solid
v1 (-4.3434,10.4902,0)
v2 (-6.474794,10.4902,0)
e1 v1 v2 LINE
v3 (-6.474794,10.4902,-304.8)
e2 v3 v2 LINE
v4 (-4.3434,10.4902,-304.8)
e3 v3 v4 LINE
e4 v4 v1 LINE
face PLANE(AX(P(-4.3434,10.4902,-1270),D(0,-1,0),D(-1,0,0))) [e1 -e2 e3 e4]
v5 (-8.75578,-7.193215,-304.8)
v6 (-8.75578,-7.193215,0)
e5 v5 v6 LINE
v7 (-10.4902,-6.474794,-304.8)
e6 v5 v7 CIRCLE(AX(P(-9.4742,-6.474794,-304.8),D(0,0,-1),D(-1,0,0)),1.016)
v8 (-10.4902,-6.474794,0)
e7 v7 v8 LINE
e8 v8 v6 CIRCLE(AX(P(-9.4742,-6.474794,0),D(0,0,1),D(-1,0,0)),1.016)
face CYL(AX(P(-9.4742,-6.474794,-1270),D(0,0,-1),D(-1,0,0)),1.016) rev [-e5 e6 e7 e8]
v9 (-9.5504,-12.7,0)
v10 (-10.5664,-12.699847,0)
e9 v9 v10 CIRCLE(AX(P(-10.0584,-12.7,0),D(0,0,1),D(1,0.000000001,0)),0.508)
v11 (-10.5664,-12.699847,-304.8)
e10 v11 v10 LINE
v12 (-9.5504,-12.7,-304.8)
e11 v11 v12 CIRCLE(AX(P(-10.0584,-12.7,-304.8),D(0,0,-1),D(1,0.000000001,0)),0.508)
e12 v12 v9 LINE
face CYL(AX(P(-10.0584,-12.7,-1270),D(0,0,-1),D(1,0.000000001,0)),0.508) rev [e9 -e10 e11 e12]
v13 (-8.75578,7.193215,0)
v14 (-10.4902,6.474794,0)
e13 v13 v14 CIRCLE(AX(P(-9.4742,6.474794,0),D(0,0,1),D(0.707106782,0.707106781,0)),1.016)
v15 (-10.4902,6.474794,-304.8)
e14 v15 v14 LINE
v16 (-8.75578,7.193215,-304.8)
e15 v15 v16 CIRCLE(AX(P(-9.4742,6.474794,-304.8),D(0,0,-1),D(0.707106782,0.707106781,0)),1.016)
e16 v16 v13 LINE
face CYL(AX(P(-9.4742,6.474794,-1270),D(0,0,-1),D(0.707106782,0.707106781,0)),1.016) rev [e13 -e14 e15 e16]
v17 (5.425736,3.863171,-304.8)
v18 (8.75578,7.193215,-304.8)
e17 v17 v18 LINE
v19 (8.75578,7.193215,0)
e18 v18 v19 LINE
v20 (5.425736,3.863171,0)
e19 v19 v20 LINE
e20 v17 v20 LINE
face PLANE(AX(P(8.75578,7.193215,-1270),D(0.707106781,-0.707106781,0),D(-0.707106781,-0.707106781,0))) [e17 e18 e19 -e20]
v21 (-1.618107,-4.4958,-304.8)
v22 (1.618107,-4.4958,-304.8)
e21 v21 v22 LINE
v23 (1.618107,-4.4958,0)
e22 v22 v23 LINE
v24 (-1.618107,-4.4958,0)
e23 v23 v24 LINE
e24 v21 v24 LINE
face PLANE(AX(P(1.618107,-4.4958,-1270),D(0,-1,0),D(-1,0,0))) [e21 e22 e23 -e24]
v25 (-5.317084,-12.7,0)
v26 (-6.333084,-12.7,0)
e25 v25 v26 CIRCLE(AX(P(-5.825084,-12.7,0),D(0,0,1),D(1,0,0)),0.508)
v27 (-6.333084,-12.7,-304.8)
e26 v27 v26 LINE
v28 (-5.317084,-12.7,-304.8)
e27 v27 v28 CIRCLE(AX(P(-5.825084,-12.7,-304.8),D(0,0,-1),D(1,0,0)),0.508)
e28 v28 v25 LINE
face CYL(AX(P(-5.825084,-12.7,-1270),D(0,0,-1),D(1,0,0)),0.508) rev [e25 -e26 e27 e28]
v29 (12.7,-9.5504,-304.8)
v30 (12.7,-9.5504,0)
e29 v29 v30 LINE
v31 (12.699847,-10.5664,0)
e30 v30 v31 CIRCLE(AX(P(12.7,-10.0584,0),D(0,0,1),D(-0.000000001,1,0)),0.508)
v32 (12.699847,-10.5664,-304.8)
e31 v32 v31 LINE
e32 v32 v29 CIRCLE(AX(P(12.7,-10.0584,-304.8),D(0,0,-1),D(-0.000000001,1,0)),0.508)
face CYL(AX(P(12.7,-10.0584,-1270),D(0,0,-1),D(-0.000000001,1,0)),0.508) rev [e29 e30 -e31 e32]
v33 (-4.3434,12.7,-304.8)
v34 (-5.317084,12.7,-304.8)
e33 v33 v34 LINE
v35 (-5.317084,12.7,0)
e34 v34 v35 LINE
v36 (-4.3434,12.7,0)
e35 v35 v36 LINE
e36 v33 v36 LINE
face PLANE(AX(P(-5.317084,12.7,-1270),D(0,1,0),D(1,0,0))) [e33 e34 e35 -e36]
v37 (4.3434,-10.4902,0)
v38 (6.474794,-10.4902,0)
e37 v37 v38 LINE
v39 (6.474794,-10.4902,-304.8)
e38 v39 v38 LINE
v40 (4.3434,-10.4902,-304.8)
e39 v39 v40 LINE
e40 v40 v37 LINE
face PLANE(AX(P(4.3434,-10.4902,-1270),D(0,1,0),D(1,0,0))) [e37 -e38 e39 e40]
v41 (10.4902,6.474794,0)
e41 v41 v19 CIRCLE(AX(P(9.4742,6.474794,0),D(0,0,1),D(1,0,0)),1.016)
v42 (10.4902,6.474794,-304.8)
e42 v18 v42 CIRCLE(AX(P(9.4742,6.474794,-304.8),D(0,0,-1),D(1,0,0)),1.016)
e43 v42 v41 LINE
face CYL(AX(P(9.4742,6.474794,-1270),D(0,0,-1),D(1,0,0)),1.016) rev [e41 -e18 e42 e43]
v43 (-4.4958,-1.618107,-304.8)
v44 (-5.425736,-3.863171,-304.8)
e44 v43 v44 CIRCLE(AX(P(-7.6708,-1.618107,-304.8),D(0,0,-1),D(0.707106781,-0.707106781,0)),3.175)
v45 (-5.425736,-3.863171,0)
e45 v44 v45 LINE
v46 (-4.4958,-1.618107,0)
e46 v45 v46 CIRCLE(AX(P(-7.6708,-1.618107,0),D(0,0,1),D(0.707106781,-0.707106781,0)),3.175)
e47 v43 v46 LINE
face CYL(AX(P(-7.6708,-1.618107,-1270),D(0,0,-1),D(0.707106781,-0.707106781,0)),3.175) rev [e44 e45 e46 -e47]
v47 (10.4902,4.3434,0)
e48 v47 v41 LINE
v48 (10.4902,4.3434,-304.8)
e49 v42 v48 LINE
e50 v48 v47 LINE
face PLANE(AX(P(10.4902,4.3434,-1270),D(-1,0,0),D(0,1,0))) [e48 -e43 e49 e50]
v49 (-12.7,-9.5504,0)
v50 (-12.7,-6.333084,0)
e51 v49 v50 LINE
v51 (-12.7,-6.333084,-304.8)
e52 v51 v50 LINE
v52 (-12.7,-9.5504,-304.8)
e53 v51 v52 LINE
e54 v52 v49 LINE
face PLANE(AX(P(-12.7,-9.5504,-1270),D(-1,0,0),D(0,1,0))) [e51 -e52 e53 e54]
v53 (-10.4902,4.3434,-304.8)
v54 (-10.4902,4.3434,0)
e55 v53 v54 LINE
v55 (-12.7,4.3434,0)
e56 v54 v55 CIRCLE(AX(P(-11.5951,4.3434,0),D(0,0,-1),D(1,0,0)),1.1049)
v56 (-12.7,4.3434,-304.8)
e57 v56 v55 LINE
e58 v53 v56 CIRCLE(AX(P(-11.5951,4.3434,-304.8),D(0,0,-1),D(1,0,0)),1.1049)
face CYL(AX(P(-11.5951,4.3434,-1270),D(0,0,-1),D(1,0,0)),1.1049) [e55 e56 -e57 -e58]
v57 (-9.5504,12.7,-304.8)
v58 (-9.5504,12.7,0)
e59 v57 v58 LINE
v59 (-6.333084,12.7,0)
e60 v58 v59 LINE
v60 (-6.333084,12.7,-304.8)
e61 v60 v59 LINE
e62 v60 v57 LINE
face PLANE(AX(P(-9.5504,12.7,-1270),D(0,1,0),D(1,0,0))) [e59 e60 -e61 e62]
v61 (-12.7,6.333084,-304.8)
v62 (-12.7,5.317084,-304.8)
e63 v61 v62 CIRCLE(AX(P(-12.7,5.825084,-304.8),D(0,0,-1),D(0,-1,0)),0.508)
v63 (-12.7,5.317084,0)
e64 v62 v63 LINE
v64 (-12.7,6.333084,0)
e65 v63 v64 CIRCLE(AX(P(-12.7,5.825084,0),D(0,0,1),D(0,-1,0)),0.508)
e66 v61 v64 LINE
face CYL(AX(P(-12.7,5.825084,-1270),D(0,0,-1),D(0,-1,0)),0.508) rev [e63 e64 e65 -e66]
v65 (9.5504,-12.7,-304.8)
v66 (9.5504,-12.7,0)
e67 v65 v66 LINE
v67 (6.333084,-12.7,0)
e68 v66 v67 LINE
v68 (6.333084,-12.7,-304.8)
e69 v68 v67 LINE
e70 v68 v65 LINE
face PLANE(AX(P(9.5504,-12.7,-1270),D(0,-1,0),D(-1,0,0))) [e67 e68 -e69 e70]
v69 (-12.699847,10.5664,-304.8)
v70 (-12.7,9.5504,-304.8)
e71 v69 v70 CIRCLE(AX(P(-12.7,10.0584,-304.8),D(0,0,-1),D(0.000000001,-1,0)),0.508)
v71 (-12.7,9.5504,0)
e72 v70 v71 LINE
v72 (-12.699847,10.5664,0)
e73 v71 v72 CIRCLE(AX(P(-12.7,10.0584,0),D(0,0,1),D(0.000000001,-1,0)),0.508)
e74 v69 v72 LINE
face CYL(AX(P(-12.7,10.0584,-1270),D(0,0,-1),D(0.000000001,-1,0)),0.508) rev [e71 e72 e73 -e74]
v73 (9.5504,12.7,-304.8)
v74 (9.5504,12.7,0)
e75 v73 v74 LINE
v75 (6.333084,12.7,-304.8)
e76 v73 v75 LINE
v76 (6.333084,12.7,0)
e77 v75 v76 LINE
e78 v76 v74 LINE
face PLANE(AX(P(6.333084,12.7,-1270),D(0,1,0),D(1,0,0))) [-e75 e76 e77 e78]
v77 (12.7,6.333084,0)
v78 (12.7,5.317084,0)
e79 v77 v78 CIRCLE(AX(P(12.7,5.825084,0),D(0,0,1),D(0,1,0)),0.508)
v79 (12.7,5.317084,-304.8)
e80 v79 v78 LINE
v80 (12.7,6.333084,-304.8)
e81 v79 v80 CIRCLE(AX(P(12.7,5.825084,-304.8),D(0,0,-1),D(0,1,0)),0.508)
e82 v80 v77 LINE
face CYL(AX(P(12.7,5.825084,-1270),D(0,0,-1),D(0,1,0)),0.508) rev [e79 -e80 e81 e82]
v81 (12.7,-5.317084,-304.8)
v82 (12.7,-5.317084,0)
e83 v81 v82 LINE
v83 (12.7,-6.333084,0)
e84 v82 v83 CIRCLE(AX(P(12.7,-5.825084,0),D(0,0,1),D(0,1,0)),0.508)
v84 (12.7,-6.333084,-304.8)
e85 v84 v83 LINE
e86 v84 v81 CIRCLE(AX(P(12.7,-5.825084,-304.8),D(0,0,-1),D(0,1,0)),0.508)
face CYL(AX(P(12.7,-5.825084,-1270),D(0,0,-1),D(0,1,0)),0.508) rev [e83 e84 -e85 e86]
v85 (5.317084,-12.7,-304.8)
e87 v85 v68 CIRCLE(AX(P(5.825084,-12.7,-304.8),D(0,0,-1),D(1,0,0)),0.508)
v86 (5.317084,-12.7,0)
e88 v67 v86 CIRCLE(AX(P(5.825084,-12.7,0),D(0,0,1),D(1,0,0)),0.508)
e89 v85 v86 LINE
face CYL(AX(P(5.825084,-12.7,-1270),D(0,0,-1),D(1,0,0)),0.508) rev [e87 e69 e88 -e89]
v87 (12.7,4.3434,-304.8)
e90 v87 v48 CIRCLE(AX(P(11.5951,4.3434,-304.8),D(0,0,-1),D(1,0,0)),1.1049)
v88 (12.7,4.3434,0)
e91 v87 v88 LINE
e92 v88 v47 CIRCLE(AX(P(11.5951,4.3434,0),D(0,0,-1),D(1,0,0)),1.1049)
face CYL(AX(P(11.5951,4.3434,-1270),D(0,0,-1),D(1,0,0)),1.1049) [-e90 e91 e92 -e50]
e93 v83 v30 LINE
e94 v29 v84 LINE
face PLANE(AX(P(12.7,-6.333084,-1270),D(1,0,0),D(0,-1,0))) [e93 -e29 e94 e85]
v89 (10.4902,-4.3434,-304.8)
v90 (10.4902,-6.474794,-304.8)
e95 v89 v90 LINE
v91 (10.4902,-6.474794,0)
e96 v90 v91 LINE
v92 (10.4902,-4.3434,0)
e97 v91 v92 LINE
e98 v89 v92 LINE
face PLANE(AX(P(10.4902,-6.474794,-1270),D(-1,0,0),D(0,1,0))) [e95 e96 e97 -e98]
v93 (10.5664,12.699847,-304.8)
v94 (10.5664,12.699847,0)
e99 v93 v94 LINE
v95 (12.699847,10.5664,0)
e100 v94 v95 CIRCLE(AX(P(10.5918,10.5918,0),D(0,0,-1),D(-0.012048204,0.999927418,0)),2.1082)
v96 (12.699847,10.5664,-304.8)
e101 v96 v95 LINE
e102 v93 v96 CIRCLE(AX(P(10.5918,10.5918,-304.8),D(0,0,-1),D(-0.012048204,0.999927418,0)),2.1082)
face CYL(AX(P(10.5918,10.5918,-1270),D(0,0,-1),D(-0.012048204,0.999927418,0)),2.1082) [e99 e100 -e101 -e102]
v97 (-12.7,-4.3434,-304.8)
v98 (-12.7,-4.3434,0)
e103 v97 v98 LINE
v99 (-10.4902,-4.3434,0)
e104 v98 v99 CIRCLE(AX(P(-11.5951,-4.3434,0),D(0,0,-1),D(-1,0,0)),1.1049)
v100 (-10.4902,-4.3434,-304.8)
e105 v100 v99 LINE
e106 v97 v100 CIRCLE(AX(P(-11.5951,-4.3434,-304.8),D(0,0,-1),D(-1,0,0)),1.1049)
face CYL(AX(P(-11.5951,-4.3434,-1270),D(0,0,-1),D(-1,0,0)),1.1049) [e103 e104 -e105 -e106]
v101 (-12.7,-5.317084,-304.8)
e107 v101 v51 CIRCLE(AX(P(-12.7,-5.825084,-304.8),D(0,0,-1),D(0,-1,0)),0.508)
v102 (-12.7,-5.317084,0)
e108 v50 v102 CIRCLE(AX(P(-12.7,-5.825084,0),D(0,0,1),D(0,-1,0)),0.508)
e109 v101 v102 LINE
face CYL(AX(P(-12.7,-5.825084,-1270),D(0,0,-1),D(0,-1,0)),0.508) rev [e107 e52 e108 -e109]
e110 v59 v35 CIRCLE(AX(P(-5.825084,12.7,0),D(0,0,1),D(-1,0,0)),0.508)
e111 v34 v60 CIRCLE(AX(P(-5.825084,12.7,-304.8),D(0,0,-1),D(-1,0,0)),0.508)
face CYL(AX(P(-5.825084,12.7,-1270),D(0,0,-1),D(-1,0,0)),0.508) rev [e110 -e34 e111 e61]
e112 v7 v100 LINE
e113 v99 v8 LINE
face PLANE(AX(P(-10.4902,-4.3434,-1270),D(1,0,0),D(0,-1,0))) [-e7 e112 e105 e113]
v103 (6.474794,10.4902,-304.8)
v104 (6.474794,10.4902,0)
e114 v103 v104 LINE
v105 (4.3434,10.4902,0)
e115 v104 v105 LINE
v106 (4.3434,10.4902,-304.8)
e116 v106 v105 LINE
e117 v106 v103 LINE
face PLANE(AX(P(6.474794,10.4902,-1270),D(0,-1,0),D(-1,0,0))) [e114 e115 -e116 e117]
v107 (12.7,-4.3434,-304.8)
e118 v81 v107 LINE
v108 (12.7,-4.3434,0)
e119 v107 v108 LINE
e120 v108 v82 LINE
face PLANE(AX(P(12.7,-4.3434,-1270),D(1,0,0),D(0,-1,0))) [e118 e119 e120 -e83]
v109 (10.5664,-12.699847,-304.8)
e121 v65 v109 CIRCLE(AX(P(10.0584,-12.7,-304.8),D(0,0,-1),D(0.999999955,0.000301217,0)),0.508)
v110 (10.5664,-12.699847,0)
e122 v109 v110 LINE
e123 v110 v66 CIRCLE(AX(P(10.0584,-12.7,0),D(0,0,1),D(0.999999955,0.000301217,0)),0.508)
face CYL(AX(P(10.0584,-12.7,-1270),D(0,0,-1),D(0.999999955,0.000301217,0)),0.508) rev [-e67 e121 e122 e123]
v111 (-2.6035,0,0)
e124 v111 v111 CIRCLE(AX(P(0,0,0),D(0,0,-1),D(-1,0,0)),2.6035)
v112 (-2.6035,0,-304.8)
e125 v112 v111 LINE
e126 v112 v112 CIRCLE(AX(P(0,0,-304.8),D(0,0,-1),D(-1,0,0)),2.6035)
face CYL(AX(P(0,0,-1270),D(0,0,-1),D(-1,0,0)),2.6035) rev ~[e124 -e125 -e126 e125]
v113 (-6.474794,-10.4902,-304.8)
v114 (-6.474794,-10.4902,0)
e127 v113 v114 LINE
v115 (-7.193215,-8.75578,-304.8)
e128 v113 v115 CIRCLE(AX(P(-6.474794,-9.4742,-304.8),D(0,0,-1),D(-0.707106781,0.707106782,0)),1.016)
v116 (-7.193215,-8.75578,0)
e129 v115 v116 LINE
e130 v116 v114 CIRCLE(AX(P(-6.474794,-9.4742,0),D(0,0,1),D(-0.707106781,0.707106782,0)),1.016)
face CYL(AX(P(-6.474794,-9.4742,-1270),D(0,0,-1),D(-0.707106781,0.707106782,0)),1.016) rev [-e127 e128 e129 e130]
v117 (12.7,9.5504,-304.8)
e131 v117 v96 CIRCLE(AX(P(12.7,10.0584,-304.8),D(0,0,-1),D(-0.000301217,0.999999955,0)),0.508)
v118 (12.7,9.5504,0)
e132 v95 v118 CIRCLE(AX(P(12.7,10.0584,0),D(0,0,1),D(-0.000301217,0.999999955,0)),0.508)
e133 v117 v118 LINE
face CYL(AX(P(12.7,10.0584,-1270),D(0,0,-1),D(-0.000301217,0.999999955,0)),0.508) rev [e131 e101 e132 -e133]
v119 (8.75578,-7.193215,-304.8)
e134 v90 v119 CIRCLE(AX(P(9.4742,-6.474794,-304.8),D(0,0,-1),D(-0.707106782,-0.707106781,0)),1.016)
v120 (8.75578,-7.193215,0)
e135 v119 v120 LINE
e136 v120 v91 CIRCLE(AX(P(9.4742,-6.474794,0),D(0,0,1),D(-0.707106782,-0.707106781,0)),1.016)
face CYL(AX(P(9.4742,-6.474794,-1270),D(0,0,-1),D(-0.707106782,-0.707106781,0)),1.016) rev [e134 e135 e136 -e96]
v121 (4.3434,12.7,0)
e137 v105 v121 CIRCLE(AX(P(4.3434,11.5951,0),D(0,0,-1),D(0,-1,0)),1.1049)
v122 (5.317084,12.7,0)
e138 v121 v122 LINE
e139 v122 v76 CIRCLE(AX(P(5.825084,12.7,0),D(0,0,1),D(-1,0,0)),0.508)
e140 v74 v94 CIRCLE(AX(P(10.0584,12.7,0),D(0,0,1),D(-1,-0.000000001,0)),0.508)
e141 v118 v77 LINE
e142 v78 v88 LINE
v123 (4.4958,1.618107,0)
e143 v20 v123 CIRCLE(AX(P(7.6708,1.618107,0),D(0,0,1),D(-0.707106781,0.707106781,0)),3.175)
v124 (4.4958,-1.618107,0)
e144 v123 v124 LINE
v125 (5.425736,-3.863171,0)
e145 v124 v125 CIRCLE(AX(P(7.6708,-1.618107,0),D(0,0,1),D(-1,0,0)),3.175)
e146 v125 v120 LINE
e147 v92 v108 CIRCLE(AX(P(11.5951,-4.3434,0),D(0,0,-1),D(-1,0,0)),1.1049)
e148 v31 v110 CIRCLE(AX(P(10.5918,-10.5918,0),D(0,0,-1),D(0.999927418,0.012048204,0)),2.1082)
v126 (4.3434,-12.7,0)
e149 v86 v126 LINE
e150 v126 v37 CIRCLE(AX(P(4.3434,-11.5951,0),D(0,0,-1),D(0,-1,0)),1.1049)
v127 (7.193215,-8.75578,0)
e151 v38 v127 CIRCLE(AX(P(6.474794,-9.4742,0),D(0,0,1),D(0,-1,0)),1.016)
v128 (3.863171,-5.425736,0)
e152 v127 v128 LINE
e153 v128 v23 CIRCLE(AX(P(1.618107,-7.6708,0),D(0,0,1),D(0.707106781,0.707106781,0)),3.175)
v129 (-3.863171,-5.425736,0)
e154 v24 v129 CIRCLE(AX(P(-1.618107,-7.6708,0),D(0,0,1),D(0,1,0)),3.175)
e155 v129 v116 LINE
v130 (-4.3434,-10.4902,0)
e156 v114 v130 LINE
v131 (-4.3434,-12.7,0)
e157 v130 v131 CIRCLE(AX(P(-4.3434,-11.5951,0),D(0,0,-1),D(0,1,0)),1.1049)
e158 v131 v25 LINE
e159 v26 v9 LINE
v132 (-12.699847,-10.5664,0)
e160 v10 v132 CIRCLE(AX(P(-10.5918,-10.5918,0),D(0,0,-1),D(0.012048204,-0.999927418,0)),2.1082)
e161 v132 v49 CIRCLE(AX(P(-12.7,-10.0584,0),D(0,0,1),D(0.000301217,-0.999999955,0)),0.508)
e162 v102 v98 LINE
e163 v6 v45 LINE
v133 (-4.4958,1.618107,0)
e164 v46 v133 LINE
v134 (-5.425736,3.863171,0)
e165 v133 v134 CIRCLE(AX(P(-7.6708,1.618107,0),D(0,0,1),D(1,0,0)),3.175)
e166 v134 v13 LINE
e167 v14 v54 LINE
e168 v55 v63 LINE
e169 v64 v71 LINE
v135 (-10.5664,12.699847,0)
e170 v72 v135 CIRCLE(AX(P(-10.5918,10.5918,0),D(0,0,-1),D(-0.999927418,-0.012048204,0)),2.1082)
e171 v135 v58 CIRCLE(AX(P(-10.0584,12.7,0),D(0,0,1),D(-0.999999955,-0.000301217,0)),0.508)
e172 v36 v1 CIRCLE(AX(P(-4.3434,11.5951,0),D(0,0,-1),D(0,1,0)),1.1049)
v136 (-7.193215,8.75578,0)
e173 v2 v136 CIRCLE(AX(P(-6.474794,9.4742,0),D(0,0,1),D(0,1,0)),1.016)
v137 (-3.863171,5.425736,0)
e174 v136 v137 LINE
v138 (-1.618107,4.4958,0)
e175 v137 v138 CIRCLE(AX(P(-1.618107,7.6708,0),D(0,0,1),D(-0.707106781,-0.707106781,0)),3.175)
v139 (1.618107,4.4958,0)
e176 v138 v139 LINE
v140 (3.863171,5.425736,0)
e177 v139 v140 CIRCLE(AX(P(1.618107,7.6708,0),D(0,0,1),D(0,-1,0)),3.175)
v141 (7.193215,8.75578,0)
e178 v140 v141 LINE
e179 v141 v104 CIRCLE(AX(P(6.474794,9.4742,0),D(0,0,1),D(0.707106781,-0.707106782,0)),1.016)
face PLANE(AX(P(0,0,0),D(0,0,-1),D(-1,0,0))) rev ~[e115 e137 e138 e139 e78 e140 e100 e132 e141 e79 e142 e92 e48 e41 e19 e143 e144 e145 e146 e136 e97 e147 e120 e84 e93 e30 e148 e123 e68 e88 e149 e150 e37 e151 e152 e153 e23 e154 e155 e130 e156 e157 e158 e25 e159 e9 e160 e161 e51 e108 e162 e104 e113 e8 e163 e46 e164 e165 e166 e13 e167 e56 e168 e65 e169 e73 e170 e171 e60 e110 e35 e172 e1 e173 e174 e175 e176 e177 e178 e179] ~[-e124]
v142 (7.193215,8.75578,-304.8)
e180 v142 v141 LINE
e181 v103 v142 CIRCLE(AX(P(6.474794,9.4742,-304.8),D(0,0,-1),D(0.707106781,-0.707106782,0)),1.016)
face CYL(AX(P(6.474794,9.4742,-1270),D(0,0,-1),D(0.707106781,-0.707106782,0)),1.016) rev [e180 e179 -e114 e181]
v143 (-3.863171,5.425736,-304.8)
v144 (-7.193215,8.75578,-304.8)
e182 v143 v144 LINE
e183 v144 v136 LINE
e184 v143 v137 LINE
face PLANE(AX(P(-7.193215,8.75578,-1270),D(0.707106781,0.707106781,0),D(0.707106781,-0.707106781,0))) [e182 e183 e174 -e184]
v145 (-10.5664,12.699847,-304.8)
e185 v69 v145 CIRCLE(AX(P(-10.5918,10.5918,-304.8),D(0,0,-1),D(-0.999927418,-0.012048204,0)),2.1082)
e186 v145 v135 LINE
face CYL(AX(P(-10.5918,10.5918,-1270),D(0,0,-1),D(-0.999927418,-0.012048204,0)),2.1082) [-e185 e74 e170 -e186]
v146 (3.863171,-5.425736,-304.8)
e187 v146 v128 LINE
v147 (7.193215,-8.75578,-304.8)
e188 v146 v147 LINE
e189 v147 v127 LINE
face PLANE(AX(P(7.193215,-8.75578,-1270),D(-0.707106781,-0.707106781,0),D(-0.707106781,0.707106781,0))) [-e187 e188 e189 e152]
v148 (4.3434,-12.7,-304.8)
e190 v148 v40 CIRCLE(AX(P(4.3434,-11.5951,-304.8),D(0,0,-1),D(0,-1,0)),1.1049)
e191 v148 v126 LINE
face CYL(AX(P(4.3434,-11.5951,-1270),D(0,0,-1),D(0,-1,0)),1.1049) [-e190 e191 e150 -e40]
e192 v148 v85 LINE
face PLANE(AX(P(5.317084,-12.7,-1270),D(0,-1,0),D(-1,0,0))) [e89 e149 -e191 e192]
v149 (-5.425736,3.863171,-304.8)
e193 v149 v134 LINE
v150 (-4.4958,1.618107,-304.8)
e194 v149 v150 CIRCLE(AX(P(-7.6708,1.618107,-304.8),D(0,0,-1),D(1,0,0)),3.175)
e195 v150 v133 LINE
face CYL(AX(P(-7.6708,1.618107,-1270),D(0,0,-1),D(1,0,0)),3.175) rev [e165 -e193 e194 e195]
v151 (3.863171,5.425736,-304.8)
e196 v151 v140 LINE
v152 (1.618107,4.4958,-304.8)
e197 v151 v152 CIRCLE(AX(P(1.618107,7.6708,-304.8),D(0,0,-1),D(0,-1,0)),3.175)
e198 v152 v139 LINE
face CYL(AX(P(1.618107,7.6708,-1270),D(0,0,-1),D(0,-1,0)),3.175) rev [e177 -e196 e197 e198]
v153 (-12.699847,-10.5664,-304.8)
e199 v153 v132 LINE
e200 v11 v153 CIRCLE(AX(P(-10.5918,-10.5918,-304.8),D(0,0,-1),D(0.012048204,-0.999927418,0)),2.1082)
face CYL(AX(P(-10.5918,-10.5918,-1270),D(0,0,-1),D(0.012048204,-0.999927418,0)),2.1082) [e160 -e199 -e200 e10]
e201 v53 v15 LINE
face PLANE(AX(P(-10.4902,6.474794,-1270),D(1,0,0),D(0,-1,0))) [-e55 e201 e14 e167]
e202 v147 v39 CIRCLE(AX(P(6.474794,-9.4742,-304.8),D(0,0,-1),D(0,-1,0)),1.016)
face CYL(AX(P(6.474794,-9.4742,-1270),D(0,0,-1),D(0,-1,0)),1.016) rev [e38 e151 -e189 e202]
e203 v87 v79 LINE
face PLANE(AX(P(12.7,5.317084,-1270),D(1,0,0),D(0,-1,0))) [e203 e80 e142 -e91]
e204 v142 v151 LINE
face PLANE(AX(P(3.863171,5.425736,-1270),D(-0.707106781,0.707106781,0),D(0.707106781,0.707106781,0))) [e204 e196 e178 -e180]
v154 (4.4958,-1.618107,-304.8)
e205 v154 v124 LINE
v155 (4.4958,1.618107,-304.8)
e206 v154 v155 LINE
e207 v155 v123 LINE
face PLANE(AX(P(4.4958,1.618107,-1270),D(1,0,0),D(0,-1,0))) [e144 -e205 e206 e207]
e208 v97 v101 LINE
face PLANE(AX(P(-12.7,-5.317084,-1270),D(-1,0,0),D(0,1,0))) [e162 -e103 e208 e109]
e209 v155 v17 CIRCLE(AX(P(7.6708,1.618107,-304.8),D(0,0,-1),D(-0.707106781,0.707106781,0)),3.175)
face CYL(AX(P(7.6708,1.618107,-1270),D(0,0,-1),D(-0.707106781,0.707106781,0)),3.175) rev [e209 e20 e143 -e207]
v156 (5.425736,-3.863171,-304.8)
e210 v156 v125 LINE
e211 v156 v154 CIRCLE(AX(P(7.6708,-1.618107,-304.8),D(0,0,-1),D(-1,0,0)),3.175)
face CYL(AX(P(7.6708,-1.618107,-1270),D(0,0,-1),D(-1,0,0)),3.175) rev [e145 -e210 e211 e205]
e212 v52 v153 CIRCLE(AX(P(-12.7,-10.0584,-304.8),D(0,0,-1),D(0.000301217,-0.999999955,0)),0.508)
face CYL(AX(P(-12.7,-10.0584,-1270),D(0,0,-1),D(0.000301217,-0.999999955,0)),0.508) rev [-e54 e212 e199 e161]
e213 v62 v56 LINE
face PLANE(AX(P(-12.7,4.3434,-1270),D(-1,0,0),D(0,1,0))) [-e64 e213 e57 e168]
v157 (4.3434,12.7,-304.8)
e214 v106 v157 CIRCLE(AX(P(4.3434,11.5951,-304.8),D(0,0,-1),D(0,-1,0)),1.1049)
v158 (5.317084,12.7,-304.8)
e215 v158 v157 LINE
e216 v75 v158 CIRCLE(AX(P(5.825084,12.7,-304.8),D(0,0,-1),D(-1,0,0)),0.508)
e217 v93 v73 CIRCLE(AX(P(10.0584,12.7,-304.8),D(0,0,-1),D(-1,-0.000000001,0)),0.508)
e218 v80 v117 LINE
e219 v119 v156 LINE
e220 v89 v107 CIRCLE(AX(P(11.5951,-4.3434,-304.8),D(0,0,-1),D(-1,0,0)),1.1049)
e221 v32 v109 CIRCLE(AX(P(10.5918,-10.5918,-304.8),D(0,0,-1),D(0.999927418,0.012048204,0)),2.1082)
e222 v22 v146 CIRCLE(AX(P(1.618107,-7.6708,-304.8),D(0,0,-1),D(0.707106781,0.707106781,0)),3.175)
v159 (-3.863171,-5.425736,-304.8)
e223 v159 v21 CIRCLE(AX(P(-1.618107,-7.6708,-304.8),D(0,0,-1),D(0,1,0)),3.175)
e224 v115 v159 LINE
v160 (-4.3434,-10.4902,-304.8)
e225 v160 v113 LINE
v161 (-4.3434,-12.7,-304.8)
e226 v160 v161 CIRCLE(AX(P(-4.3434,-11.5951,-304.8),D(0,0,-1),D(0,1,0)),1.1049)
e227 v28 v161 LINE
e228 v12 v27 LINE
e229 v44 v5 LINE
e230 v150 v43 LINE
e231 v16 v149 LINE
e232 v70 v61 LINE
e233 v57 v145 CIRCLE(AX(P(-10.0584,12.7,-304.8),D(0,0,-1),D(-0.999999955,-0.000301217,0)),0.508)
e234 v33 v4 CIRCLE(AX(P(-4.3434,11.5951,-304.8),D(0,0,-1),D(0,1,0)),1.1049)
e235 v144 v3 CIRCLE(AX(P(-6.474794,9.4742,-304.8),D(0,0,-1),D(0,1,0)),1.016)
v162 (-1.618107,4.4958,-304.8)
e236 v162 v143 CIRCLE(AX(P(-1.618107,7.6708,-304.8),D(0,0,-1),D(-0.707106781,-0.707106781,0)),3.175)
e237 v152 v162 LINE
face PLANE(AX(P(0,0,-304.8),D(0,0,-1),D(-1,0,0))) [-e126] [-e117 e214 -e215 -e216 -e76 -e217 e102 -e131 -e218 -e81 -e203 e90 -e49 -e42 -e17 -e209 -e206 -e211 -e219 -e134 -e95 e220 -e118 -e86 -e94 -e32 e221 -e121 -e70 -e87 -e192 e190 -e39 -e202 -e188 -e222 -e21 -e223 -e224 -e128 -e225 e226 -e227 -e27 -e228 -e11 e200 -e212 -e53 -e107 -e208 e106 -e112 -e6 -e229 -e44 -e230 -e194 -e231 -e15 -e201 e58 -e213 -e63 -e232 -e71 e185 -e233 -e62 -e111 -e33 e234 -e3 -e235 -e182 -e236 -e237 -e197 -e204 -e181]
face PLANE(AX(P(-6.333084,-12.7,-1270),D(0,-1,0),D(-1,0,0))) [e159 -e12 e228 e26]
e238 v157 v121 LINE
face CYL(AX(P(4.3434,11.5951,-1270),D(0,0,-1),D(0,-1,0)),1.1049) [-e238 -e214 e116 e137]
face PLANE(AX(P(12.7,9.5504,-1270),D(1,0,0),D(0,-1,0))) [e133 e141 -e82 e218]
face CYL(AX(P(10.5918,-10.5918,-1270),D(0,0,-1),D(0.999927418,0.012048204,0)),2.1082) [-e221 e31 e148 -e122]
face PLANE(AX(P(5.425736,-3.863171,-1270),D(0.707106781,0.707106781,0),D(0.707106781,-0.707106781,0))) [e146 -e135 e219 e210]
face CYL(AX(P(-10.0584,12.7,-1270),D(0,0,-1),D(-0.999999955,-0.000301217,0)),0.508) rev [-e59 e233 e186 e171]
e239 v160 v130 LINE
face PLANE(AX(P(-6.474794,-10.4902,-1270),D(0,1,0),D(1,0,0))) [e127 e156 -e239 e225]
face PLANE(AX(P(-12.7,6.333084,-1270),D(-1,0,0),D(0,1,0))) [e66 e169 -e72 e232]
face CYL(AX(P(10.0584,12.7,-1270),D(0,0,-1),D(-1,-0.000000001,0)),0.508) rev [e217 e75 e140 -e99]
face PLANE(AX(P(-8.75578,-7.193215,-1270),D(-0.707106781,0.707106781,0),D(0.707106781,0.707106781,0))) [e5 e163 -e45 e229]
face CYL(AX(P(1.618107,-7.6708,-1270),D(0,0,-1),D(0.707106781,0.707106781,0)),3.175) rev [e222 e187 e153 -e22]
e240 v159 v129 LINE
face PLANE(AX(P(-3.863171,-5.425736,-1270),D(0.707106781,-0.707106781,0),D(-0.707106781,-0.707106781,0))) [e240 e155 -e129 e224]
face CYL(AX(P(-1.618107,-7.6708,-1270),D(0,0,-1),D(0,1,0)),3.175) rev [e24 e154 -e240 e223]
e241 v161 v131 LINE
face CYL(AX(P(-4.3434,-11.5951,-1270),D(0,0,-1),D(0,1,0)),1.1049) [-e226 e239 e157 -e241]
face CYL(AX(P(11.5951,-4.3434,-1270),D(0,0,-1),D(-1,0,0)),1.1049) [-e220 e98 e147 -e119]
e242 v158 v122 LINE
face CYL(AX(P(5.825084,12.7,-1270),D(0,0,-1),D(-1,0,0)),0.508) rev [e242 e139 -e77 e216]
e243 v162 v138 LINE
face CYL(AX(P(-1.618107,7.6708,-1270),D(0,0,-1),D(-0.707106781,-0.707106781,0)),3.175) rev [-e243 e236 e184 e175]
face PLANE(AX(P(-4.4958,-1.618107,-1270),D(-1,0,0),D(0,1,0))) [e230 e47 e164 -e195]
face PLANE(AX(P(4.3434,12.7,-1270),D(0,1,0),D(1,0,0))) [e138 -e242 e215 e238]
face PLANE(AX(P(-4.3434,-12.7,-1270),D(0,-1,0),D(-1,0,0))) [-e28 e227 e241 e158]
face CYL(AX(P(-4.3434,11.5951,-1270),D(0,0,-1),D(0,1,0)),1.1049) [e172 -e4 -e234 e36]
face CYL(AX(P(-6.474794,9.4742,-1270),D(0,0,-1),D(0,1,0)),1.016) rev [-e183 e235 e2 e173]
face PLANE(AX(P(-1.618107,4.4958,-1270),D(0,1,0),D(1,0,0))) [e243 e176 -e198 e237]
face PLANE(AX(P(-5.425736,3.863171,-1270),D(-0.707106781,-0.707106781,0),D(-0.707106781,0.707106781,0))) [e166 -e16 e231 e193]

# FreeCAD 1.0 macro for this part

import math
import FreeCAD as App
import Part
import Sketcher

V = App.Vector
Q = App.Units.Quantity


def add_polygon(sketch, points):
    """Adds a closed chain of lines whose ends are joined by coincident constraints."""
    first, n = sketch.GeometryCount, len(points)
    for a, b in zip(points, points[1:] + points[:1]):
        sketch.addGeometry(Part.LineSegment(App.Vector(*a, 0), App.Vector(*b, 0)), False)
    for i in range(n):
        sketch.addConstraint(Sketcher.Constraint("Coincident", first + i, 2, first + (i + 1) % n, 1))

doc = App.newDocument("Part")
body = doc.addObject("PartDesign::Body", "Body")

# Sketch on XY plane
sketch1 = body.newObject("Sketcher::SketchObject", "Sketch")
sketch1.AttachmentSupport = (doc.getObject("XY_Plane"), [""])
sketch1.MapMode = "FlatFace"
sketch1.AttachmentOffset = App.Placement(V(0, 0, -50 * 25.4), App.Rotation())
sketch1.addGeometry([
    Part.LineSegment(V(-12.7, -9.5504, 0), V(-12.7, -6.333084, 0)),  # 0
    Part.ArcOfCircle(Part.Circle(V(-12.7, -5.825084, 0), V(0, 0, 1), 0.508), math.radians(-90), math.radians(90)),  # 1
    Part.LineSegment(V(-12.7, -5.317084, 0), V(-12.7, -4.3434, 0)),  # 2
    Part.ArcOfCircle(Part.Circle(V(-11.5951, -4.3434, 0), V(0, 0, 1), 1.1049), math.radians(0), math.radians(180)),  # 3
    Part.LineSegment(V(-10.4902, -4.3434, 0), V(-10.4902, -6.474794, 0)),  # 4
    Part.ArcOfCircle(Part.Circle(V(-9.4742, -6.474794, 0), V(0, 0, 1), 1.016), math.radians(180), math.radians(315)),  # 5
    Part.LineSegment(V(-8.75578, -7.193215, 0), V(-5.425736, -3.863171, 0)),  # 6
    Part.ArcOfCircle(Part.Circle(V(-7.6708, -1.618107, 0), V(0, 0, 1), 3.175), math.radians(-45), math.radians(0)),  # 7
    Part.LineSegment(V(-4.4958, -1.618107, 0), V(-4.4958, 1.618107, 0)),  # 8
    Part.ArcOfCircle(Part.Circle(V(-7.6708, 1.618107, 0), V(0, 0, 1), 3.175), math.radians(0), math.radians(45)),  # 9
    Part.LineSegment(V(-5.425736, 3.863171, 0), V(-8.75578, 7.193215, 0)),  # 10
    Part.ArcOfCircle(Part.Circle(V(-9.4742, 6.474794, 0), V(0, 0, 1), 1.016), math.radians(45), math.radians(180)),  # 11
    Part.LineSegment(V(-10.4902, 6.474794, 0), V(-10.4902, 4.3434, 0)),  # 12
    Part.ArcOfCircle(Part.Circle(V(-11.5951, 4.3434, 0), V(0, 0, 1), 1.1049), math.radians(180), math.radians(360)),  # 13
    Part.LineSegment(V(-12.7, 4.3434, 0), V(-12.7, 5.317084, 0)),  # 14
    Part.ArcOfCircle(Part.Circle(V(-12.7, 5.825084, 0), V(0, 0, 1), 0.508), math.radians(-90), math.radians(90)),  # 15
    Part.LineSegment(V(-12.7, 6.333084, 0), V(-12.7, 9.5504, 0)),  # 16
    Part.ArcOfCircle(Part.Circle(V(-12.7, 10.0584, 0), V(0, 0, 1), 0.508), math.radians(-90), math.radians(89.982742)),  # 17
    Part.ArcOfCircle(Part.Circle(V(-10.5918, 10.5918, 0), V(0, 0, 1), 2.1082), math.radians(89.309672), math.radians(180.690328)),  # 18
    Part.ArcOfCircle(Part.Circle(V(-10.0584, 12.7, 0), V(0, 0, 1), 0.508), math.radians(-179.982742), math.radians(0)),  # 19
    Part.LineSegment(V(-9.5504, 12.7, 0), V(-6.333084, 12.7, 0)),  # 20
    Part.ArcOfCircle(Part.Circle(V(-5.825084, 12.7, 0), V(0, 0, 1), 0.508), math.radians(180), math.radians(360)),  # 21
    Part.LineSegment(V(-5.317084, 12.7, 0), V(-4.3434, 12.7, 0)),  # 22
    Part.ArcOfCircle(Part.Circle(V(-4.3434, 11.5951, 0), V(0, 0, 1), 1.1049), math.radians(-90), math.radians(90)),  # 23
    Part.LineSegment(V(-4.3434, 10.4902, 0), V(-6.474794, 10.4902, 0)),  # 24
    Part.ArcOfCircle(Part.Circle(V(-6.474794, 9.4742, 0), V(0, 0, 1), 1.016), math.radians(90), math.radians(225)),  # 25
    Part.LineSegment(V(-7.193215, 8.75578, 0), V(-3.863171, 5.425736, 0)),  # 26
    Part.ArcOfCircle(Part.Circle(V(-1.618107, 7.6708, 0), V(0, 0, 1), 3.175), math.radians(-135), math.radians(-90)),  # 27
    Part.LineSegment(V(-1.618107, 4.4958, 0), V(1.618107, 4.4958, 0)),  # 28
    Part.ArcOfCircle(Part.Circle(V(1.618107, 7.6708, 0), V(0, 0, 1), 3.175), math.radians(-90), math.radians(-45)),  # 29
    Part.LineSegment(V(3.863171, 5.425736, 0), V(7.193215, 8.75578, 0)),  # 30
    Part.ArcOfCircle(Part.Circle(V(6.474794, 9.4742, 0), V(0, 0, 1), 1.016), math.radians(-45), math.radians(90)),  # 31
    Part.LineSegment(V(6.474794, 10.4902, 0), V(4.3434, 10.4902, 0)),  # 32
    Part.ArcOfCircle(Part.Circle(V(4.3434, 11.5951, 0), V(0, 0, 1), 1.1049), math.radians(90), math.radians(270)),  # 33
    Part.LineSegment(V(4.3434, 12.7, 0), V(5.317084, 12.7, 0)),  # 34
    Part.ArcOfCircle(Part.Circle(V(5.825084, 12.7, 0), V(0, 0, 1), 0.508), math.radians(180), math.radians(360)),  # 35
    Part.LineSegment(V(6.333084, 12.7, 0), V(9.5504, 12.7, 0)),  # 36
    Part.ArcOfCircle(Part.Circle(V(10.0584, 12.7, 0), V(0, 0, 1), 0.508), math.radians(180), math.radians(359.982742)),  # 37
    Part.ArcOfCircle(Part.Circle(V(10.5918, 10.5918, 0), V(0, 0, 1), 2.1082), math.radians(-0.690328), math.radians(90.690328)),  # 38
    Part.ArcOfCircle(Part.Circle(V(12.7, 10.0584, 0), V(0, 0, 1), 0.508), math.radians(90.017258), math.radians(270)),  # 39
    Part.LineSegment(V(12.7, 9.5504, 0), V(12.7, 6.333084, 0)),  # 40
    Part.ArcOfCircle(Part.Circle(V(12.7, 5.825084, 0), V(0, 0, 1), 0.508), math.radians(90), math.radians(270)),  # 41
    Part.LineSegment(V(12.7, 5.317084, 0), V(12.7, 4.3434, 0)),  # 42
    Part.ArcOfCircle(Part.Circle(V(11.5951, 4.3434, 0), V(0, 0, 1), 1.1049), math.radians(180), math.radians(360)),  # 43
    Part.LineSegment(V(10.4902, 4.3434, 0), V(10.4902, 6.474794, 0)),  # 44
    Part.ArcOfCircle(Part.Circle(V(9.4742, 6.474794, 0), V(0, 0, 1), 1.016), math.radians(0), math.radians(135)),  # 45
    Part.LineSegment(V(8.75578, 7.193215, 0), V(5.425736, 3.863171, 0)),  # 46
    Part.ArcOfCircle(Part.Circle(V(7.6708, 1.618107, 0), V(0, 0, 1), 3.175), math.radians(135), math.radians(180)),  # 47
    Part.LineSegment(V(4.4958, 1.618107, 0), V(4.4958, -1.618107, 0)),  # 48
    Part.ArcOfCircle(Part.Circle(V(7.6708, -1.618107, 0), V(0, 0, 1), 3.175), math.radians(180), math.radians(225)),  # 49
    Part.LineSegment(V(5.425736, -3.863171, 0), V(8.75578, -7.193215, 0)),  # 50
    Part.ArcOfCircle(Part.Circle(V(9.4742, -6.474794, 0), V(0, 0, 1), 1.016), math.radians(-135), math.radians(0)),  # 51
    Part.LineSegment(V(10.4902, -6.474794, 0), V(10.4902, -4.3434, 0)),  # 52
    Part.ArcOfCircle(Part.Circle(V(11.5951, -4.3434, 0), V(0, 0, 1), 1.1049), math.radians(0), math.radians(180)),  # 53
    Part.LineSegment(V(12.7, -4.3434, 0), V(12.7, -5.317084, 0)),  # 54
    Part.ArcOfCircle(Part.Circle(V(12.7, -5.825084, 0), V(0, 0, 1), 0.508), math.radians(90), math.radians(270)),  # 55
    Part.LineSegment(V(12.7, -6.333084, 0), V(12.7, -9.5504, 0)),  # 56
    Part.ArcOfCircle(Part.Circle(V(12.7, -10.0584, 0), V(0, 0, 1), 0.508), math.radians(90), math.radians(269.982742)),  # 57
    Part.ArcOfCircle(Part.Circle(V(10.5918, -10.5918, 0), V(0, 0, 1), 2.1082), math.radians(-90.690328), math.radians(0.690328)),  # 58
    Part.ArcOfCircle(Part.Circle(V(10.0584, -12.7, 0), V(0, 0, 1), 0.508), math.radians(0.017258), math.radians(180)),  # 59
    Part.LineSegment(V(9.5504, -12.7, 0), V(6.333084, -12.7, 0)),  # 60
    Part.ArcOfCircle(Part.Circle(V(5.825084, -12.7, 0), V(0, 0, 1), 0.508), math.radians(0), math.radians(180)),  # 61
    Part.LineSegment(V(5.317084, -12.7, 0), V(4.3434, -12.7, 0)),  # 62
    Part.ArcOfCircle(Part.Circle(V(4.3434, -11.5951, 0), V(0, 0, 1), 1.1049), math.radians(90), math.radians(270)),  # 63
    Part.LineSegment(V(4.3434, -10.4902, 0), V(6.474794, -10.4902, 0)),  # 64
    Part.ArcOfCircle(Part.Circle(V(6.474794, -9.4742, 0), V(0, 0, 1), 1.016), math.radians(-90), math.radians(45)),  # 65
    Part.LineSegment(V(7.193215, -8.75578, 0), V(3.863171, -5.425736, 0)),  # 66
    Part.ArcOfCircle(Part.Circle(V(1.618107, -7.6708, 0), V(0, 0, 1), 3.175), math.radians(45), math.radians(90)),  # 67
    Part.LineSegment(V(1.618107, -4.4958, 0), V(-1.618107, -4.4958, 0)),  # 68
    Part.ArcOfCircle(Part.Circle(V(-1.618107, -7.6708, 0), V(0, 0, 1), 3.175), math.radians(90), math.radians(135)),  # 69
    Part.LineSegment(V(-3.863171, -5.425736, 0), V(-7.193215, -8.75578, 0)),  # 70
    Part.ArcOfCircle(Part.Circle(V(-6.474794, -9.4742, 0), V(0, 0, 1), 1.016), math.radians(135), math.radians(270)),  # 71
    Part.LineSegment(V(-6.474794, -10.4902, 0), V(-4.3434, -10.4902, 0)),  # 72
    Part.ArcOfCircle(Part.Circle(V(-4.3434, -11.5951, 0), V(0, 0, 1), 1.1049), math.radians(-90), math.radians(90)),  # 73
    Part.LineSegment(V(-4.3434, -12.7, 0), V(-5.317084, -12.7, 0)),  # 74
    Part.ArcOfCircle(Part.Circle(V(-5.825084, -12.7, 0), V(0, 0, 1), 0.508), math.radians(0), math.radians(180)),  # 75
    Part.LineSegment(V(-6.333084, -12.7, 0), V(-9.5504, -12.7, 0)),  # 76
    Part.ArcOfCircle(Part.Circle(V(-10.0584, -12.7, 0), V(0, 0, 1), 0.508), math.radians(0), math.radians(179.982742)),  # 77
    Part.ArcOfCircle(Part.Circle(V(-10.5918, -10.5918, 0), V(0, 0, 1), 2.1082), math.radians(179.309672), math.radians(270.690328)),  # 78
    Part.ArcOfCircle(Part.Circle(V(-12.7, -10.0584, 0), V(0, 0, 1), 0.508), math.radians(-89.982742), math.radians(90)),  # 79
    Part.Circle(V(0, 0, 0), V(0, 0, 1), 2.6035),  # 80
], False)
sketch1.addConstraint([
    Sketcher.Constraint("Coincident", 0, 2, 1, 1),
    Sketcher.Constraint("Coincident", 1, 2, 2, 1),
    Sketcher.Constraint("Tangent", 2, 2, 3, 2),
    Sketcher.Constraint("Tangent", 3, 1, 4, 1),
    Sketcher.Constraint("Tangent", 4, 2, 5, 1),
    Sketcher.Constraint("Tangent", 5, 2, 6, 1),
    Sketcher.Constraint("Tangent", 6, 2, 7, 1),
    Sketcher.Constraint("Tangent", 7, 2, 8, 1),
    Sketcher.Constraint("Tangent", 8, 2, 9, 1),
    Sketcher.Constraint("Tangent", 9, 2, 10, 1),
    Sketcher.Constraint("Tangent", 10, 2, 11, 1),
    Sketcher.Constraint("Tangent", 11, 2, 12, 1),
    Sketcher.Constraint("Tangent", 12, 2, 13, 2),
    Sketcher.Constraint("Tangent", 13, 1, 14, 1),
    Sketcher.Constraint("Coincident", 14, 2, 15, 1),
    Sketcher.Constraint("Coincident", 15, 2, 16, 1),
    Sketcher.Constraint("Coincident", 16, 2, 17, 1),
    Sketcher.Constraint("Coincident", 17, 2, 18, 2),
    Sketcher.Constraint("Coincident", 18, 1, 19, 1),
    Sketcher.Constraint("Coincident", 19, 2, 20, 1),
    Sketcher.Constraint("Coincident", 20, 2, 21, 1),
    Sketcher.Constraint("Coincident", 21, 2, 22, 1),
    Sketcher.Constraint("Tangent", 22, 2, 23, 2),
    Sketcher.Constraint("Tangent", 23, 1, 24, 1),
    Sketcher.Constraint("Tangent", 24, 2, 25, 1),
    Sketcher.Constraint("Tangent", 25, 2, 26, 1),
    Sketcher.Constraint("Tangent", 26, 2, 27, 1),
    Sketcher.Constraint("Tangent", 27, 2, 28, 1),
    Sketcher.Constraint("Tangent", 28, 2, 29, 1),
    Sketcher.Constraint("Tangent", 29, 2, 30, 1),
    Sketcher.Constraint("Tangent", 30, 2, 31, 1),
    Sketcher.Constraint("Tangent", 31, 2, 32, 1),
    Sketcher.Constraint("Tangent", 32, 2, 33, 2),
    Sketcher.Constraint("Tangent", 33, 1, 34, 1),
    Sketcher.Constraint("Coincident", 34, 2, 35, 1),
    Sketcher.Constraint("Coincident", 35, 2, 36, 1),
    Sketcher.Constraint("Coincident", 36, 2, 37, 1),
    Sketcher.Constraint("Coincident", 37, 2, 38, 2),
    Sketcher.Constraint("Coincident", 38, 1, 39, 1),
    Sketcher.Constraint("Coincident", 39, 2, 40, 1),
    Sketcher.Constraint("Coincident", 40, 2, 41, 1),
    Sketcher.Constraint("Coincident", 41, 2, 42, 1),
    Sketcher.Constraint("Tangent", 42, 2, 43, 2),
    Sketcher.Constraint("Tangent", 43, 1, 44, 1),
    Sketcher.Constraint("Tangent", 44, 2, 45, 1),
    Sketcher.Constraint("Tangent", 45, 2, 46, 1),
    Sketcher.Constraint("Tangent", 46, 2, 47, 1),
    Sketcher.Constraint("Tangent", 47, 2, 48, 1),
    Sketcher.Constraint("Tangent", 48, 2, 49, 1),
    Sketcher.Constraint("Tangent", 49, 2, 50, 1),
    Sketcher.Constraint("Tangent", 50, 2, 51, 1),
    Sketcher.Constraint("Tangent", 51, 2, 52, 1),
    Sketcher.Constraint("Tangent", 52, 2, 53, 2),
    Sketcher.Constraint("Tangent", 53, 1, 54, 1),
    Sketcher.Constraint("Coincident", 54, 2, 55, 1),
    Sketcher.Constraint("Coincident", 55, 2, 56, 1),
    Sketcher.Constraint("Coincident", 56, 2, 57, 1),
    Sketcher.Constraint("Coincident", 57, 2, 58, 2),
    Sketcher.Constraint("Coincident", 58, 1, 59, 1),
    Sketcher.Constraint("Coincident", 59, 2, 60, 1),
    Sketcher.Constraint("Coincident", 60, 2, 61, 1),
    Sketcher.Constraint("Coincident", 61, 2, 62, 1),
    Sketcher.Constraint("Tangent", 62, 2, 63, 2),
    Sketcher.Constraint("Tangent", 63, 1, 64, 1),
    Sketcher.Constraint("Tangent", 64, 2, 65, 1),
    Sketcher.Constraint("Tangent", 65, 2, 66, 1),
    Sketcher.Constraint("Tangent", 66, 2, 67, 1),
    Sketcher.Constraint("Tangent", 67, 2, 68, 1),
    Sketcher.Constraint("Tangent", 68, 2, 69, 1),
    Sketcher.Constraint("Tangent", 69, 2, 70, 1),
    Sketcher.Constraint("Tangent", 70, 2, 71, 1),
    Sketcher.Constraint("Tangent", 71, 2, 72, 1),
    Sketcher.Constraint("Tangent", 72, 2, 73, 2),
    Sketcher.Constraint("Tangent", 73, 1, 74, 1),
    Sketcher.Constraint("Coincident", 74, 2, 75, 1),
    Sketcher.Constraint("Coincident", 75, 2, 76, 1),
    Sketcher.Constraint("Coincident", 76, 2, 77, 1),
    Sketcher.Constraint("Coincident", 77, 2, 78, 2),
    Sketcher.Constraint("Coincident", 78, 1, 79, 1),
    Sketcher.Constraint("Coincident", 79, 2, 0, 1),
    Sketcher.Constraint("Vertical", 0),
    Sketcher.Constraint("Vertical", 2),
    Sketcher.Constraint("Vertical", 4),
    Sketcher.Constraint("Vertical", 8),
    Sketcher.Constraint("Vertical", 12),
    Sketcher.Constraint("Vertical", 14),
    Sketcher.Constraint("Vertical", 16),
    Sketcher.Constraint("Horizontal", 20),
    Sketcher.Constraint("Horizontal", 22),
    Sketcher.Constraint("Horizontal", 24),
    Sketcher.Constraint("Horizontal", 28),
    Sketcher.Constraint("Horizontal", 32),
    Sketcher.Constraint("Horizontal", 34),
    Sketcher.Constraint("Horizontal", 36),
    Sketcher.Constraint("Vertical", 40),
    Sketcher.Constraint("Vertical", 42),
    Sketcher.Constraint("Vertical", 44),
    Sketcher.Constraint("Vertical", 48),
    Sketcher.Constraint("Vertical", 52),
    Sketcher.Constraint("Vertical", 54),
    Sketcher.Constraint("Vertical", 56),
    Sketcher.Constraint("Horizontal", 60),
    Sketcher.Constraint("Horizontal", 62),
    Sketcher.Constraint("Horizontal", 64),
    Sketcher.Constraint("Horizontal", 68),
    Sketcher.Constraint("Horizontal", 72),
    Sketcher.Constraint("Horizontal", 74),
    Sketcher.Constraint("Horizontal", 76),
    Sketcher.Constraint("Coincident", 80, 3, -1, 1),
    Sketcher.Constraint("Equal", 7, 9),
    Sketcher.Constraint("Equal", 5, 11),
    Sketcher.Constraint("Equal", 3, 13),
    Sketcher.Constraint("Equal", 1, 15),
    Sketcher.Constraint("Equal", 15, 17),
    Sketcher.Constraint("Equal", 17, 19),
    Sketcher.Constraint("Equal", 19, 21),
    Sketcher.Constraint("Equal", 13, 23),
    Sketcher.Constraint("Equal", 11, 25),
    Sketcher.Constraint("Equal", 9, 27),
    Sketcher.Constraint("Equal", 27, 29),
    Sketcher.Constraint("Equal", 25, 31),
    Sketcher.Constraint("Equal", 23, 33),
    Sketcher.Constraint("Equal", 21, 35),
    Sketcher.Constraint("Equal", 35, 37),
    Sketcher.Constraint("Equal", 18, 38),
    Sketcher.Constraint("Equal", 37, 39),
    Sketcher.Constraint("Equal", 39, 41),
    Sketcher.Constraint("Equal", 33, 43),
    Sketcher.Constraint("Equal", 31, 45),
    Sketcher.Constraint("Equal", 29, 47),
    Sketcher.Constraint("Equal", 47, 49),
    Sketcher.Constraint("Equal", 45, 51),
    Sketcher.Constraint("Equal", 43, 53),
    Sketcher.Constraint("Equal", 41, 55),
    Sketcher.Constraint("Equal", 55, 57),
    Sketcher.Constraint("Equal", 38, 58),
    Sketcher.Constraint("Equal", 57, 59),
    Sketcher.Constraint("Equal", 59, 61),
    Sketcher.Constraint("Equal", 53, 63),
    Sketcher.Constraint("Equal", 51, 65),
    Sketcher.Constraint("Equal", 49, 67),
    Sketcher.Constraint("Equal", 67, 69),
    Sketcher.Constraint("Equal", 65, 71),
    Sketcher.Constraint("Equal", 63, 73),
    Sketcher.Constraint("Equal", 61, 75),
    Sketcher.Constraint("Equal", 75, 77),
    Sketcher.Constraint("Equal", 58, 78),
    Sketcher.Constraint("Equal", 77, 79),
    Sketcher.Constraint("Symmetric", 1, 3, 41, 3, -1, 1),
    Sketcher.Constraint("Symmetric", 3, 3, 43, 3, -1, 1),
    Sketcher.Constraint("Symmetric", 7, 3, 47, 3, -1, 1),
    Sketcher.Constraint("Symmetric", 11, 3, 51, 3, -1, 1),
    Sketcher.Constraint("Symmetric", 15, 3, 55, 3, -1, 1),
    Sketcher.Constraint("Symmetric", 17, 3, 57, 3, -1, 1),
    Sketcher.Constraint("Symmetric", 18, 3, 58, 3, -1, 1),
    Sketcher.Constraint("Symmetric", 19, 3, 59, 3, -1, 1),
    Sketcher.Constraint("Symmetric", 21, 3, 61, 3, -1, 1),
    Sketcher.Constraint("Symmetric", 23, 3, 63, 3, -1, 1),
    Sketcher.Constraint("Symmetric", 27, 3, 67, 3, -1, 1),
    Sketcher.Constraint("Symmetric", 31, 3, 71, 3, -1, 1),
    Sketcher.Constraint("Symmetric", 35, 3, 75, 3, -1, 1),
    Sketcher.Constraint("Symmetric", 37, 3, 77, 3, -1, 1),
    Sketcher.Constraint("Symmetric", 38, 3, 78, 3, -1, 1),
    Sketcher.Constraint("Symmetric", 39, 3, 79, 3, -1, 1),
    Sketcher.Constraint("Symmetric", 25, 3, 31, 3, -2),
    Sketcher.Constraint("Symmetric", 21, 3, 35, 3, -2),
    Sketcher.Constraint("Symmetric", 19, 3, 37, 3, -2),
    Sketcher.Constraint("Symmetric", 18, 3, 38, 3, -2),
    Sketcher.Constraint("Symmetric", 17, 3, 39, 3, -2),
    Sketcher.Constraint("Symmetric", 15, 3, 41, 3, -2),
    Sketcher.Constraint("Symmetric", 13, 3, 43, 3, -2),
    Sketcher.Constraint("Symmetric", 10, 2, 45, 2, -2),
    Sketcher.Constraint("Symmetric", 6, 2, 49, 2, -2),
    Sketcher.Constraint("Symmetric", 66, 2, 69, 2, -2),
    Sketcher.Constraint("Perpendicular", 6, 10),
    Sketcher.Constraint("Parallel", 10, 26),
    Sketcher.Constraint("Perpendicular", 26, 30),
    Sketcher.Constraint("Horizontal", 19, 3, 21, 3),
    Sketcher.Constraint("Horizontal", 3, 3, 53, 3),
    Sketcher.Constraint("Horizontal", 37, 3, 19, 2),
    Sketcher.Constraint("Horizontal", 20, 2, 21, 2),
    Sketcher.Constraint("Horizontal", 34, 2, 35, 2),
    Sketcher.Constraint("Horizontal", 77, 3, 59, 2),
    Sketcher.Constraint("Horizontal", 74, 2, 75, 2),
    Sketcher.Constraint("Vertical", 15, 3, 17, 3),
    Sketcher.Constraint("Vertical", 33, 3, 63, 3),
    Sketcher.Constraint("Vertical", 23, 3, 73, 3),
    Sketcher.Constraint("Vertical", 79, 3, 0, 2),
    Sketcher.Constraint("Vertical", 0, 2, 1, 2),
    Sketcher.Constraint("Vertical", 14, 2, 15, 2),
    Sketcher.Constraint("Vertical", 57, 3, 39, 2),
    Sketcher.Constraint("Vertical", 54, 2, 55, 2),
    Sketcher.Constraint("Equal", 76, 0),
    Sketcher.Constraint("Equal", 74, 2),
    Sketcher.Constraint("Equal", 72, 4),
    Sketcher.Constraint("Equal", 68, 8),
    Sketcher.Constraint("Equal", 10, 26),
    Sketcher.Constraint("Radius", 1, Q("0.02 in")),
    Sketcher.Constraint("Radius", 5, Q("0.04 in")),
    Sketcher.Constraint("Diameter", 80, Q("0.205 in")),
    Sketcher.Constraint("Radius", 7, Q("0.125 in")),
    Sketcher.Constraint("Radius", 18, Q("0.083 in")),
    Sketcher.Constraint("DistanceX", 1, 3, -1, 1, Q("0.5 in")),
    Sketcher.Constraint("DistanceY", -1, 1, 19, 3, Q("0.5 in")),
    Sketcher.Constraint("Radius", 3, Q("0.0435 in")),
    Sketcher.Constraint("DistanceY", 3, 3, -1, 1, Q("0.171 in")),
    Sketcher.Constraint("DistanceX", 7, 3, -1, 1, Q("0.302 in")),
    Sketcher.Constraint("DistanceY", -1, 1, 17, 3, Q("0.396 in")),
    Sketcher.Constraint("DistanceX", 18, 3, -1, 1, Q("0.417 in")),
    Sketcher.Constraint("DistanceY", -1, 1, 18, 3, Q("0.417 in")),
    Sketcher.Constraint("DistanceX", 20, 1, 20, 2, 3.217316),
    Sketcher.Constraint("DistanceX", 24, 2, 24, 1, 2.131394),
])
pad1 = body.newObject("PartDesign::Pad", "Pad")
pad1.Profile = sketch1
pad1.Length = Q("50 in")

# Sketch on XY plane
sketch2 = body.newObject("Sketcher::SketchObject", "Sketch001")
sketch2.AttachmentSupport = (doc.getObject("XY_Plane"), [""])
sketch2.MapMode = "FlatFace"
sketch2.AttachmentOffset = App.Placement(V(0, 0, -27.5 * 25.4), App.Rotation())
add_polygon(sketch2, [(43.664546, 34.124182), (43.664546, -75.223619), (-79.002423, -75.223619), (-79.002423, 34.124182)])  # lines 0-3
sketch2.addConstraint([
    Sketcher.Constraint("Vertical", 0),
    Sketcher.Constraint("Horizontal", 1),
    Sketcher.Constraint("Vertical", 2),
    Sketcher.Constraint("Horizontal", 3),
    Sketcher.Constraint("DistanceY", 0, 2, 0, 1, 109.347801),
    Sketcher.Constraint("DistanceX", 1, 2, 1, 1, 122.666969),
    Sketcher.Constraint("DistanceY", 0, 2, -1, 1, 75.223619),
    Sketcher.Constraint("DistanceX", -1, 1, 0, 2, 43.664546),
])
pocket1 = body.newObject("PartDesign::Pocket", "Pocket")
pocket1.Profile = sketch2
pocket1.Type = "ThroughAll"

# Sketch on XY plane
sketch3 = body.newObject("Sketcher::SketchObject", "Sketch002")
sketch3.AttachmentSupport = (doc.getObject("XY_Plane"), [""])
sketch3.MapMode = "FlatFace"
sketch3.AttachmentOffset = App.Placement(V(0, 0, -27.5 * 25.4), App.Rotation())
add_polygon(sketch3, [(19.499708, 15.693484), (19.499708, -15.693484), (-19.499708, -15.693484), (-19.499708, 15.693484)])  # lines 0-3
sketch3.addConstraint([
    Sketcher.Constraint("Vertical", 0),
    Sketcher.Constraint("Horizontal", 1),
    Sketcher.Constraint("Vertical", 2),
    Sketcher.Constraint("Horizontal", 3),
    Sketcher.Constraint("Symmetric", 0, 2, 2, 2, -1, 1),
    Sketcher.Constraint("DistanceY", 0, 2, 0, 1, 31.386968),
    Sketcher.Constraint("DistanceX", 1, 2, 1, 1, 38.999416),
])
pocket2 = body.newObject("PartDesign::Pocket", "Pocket001")
pocket2.Profile = sketch3
pocket2.Length = Q("15.5 in")
pocket2.Reversed = True

doc.recompute()
